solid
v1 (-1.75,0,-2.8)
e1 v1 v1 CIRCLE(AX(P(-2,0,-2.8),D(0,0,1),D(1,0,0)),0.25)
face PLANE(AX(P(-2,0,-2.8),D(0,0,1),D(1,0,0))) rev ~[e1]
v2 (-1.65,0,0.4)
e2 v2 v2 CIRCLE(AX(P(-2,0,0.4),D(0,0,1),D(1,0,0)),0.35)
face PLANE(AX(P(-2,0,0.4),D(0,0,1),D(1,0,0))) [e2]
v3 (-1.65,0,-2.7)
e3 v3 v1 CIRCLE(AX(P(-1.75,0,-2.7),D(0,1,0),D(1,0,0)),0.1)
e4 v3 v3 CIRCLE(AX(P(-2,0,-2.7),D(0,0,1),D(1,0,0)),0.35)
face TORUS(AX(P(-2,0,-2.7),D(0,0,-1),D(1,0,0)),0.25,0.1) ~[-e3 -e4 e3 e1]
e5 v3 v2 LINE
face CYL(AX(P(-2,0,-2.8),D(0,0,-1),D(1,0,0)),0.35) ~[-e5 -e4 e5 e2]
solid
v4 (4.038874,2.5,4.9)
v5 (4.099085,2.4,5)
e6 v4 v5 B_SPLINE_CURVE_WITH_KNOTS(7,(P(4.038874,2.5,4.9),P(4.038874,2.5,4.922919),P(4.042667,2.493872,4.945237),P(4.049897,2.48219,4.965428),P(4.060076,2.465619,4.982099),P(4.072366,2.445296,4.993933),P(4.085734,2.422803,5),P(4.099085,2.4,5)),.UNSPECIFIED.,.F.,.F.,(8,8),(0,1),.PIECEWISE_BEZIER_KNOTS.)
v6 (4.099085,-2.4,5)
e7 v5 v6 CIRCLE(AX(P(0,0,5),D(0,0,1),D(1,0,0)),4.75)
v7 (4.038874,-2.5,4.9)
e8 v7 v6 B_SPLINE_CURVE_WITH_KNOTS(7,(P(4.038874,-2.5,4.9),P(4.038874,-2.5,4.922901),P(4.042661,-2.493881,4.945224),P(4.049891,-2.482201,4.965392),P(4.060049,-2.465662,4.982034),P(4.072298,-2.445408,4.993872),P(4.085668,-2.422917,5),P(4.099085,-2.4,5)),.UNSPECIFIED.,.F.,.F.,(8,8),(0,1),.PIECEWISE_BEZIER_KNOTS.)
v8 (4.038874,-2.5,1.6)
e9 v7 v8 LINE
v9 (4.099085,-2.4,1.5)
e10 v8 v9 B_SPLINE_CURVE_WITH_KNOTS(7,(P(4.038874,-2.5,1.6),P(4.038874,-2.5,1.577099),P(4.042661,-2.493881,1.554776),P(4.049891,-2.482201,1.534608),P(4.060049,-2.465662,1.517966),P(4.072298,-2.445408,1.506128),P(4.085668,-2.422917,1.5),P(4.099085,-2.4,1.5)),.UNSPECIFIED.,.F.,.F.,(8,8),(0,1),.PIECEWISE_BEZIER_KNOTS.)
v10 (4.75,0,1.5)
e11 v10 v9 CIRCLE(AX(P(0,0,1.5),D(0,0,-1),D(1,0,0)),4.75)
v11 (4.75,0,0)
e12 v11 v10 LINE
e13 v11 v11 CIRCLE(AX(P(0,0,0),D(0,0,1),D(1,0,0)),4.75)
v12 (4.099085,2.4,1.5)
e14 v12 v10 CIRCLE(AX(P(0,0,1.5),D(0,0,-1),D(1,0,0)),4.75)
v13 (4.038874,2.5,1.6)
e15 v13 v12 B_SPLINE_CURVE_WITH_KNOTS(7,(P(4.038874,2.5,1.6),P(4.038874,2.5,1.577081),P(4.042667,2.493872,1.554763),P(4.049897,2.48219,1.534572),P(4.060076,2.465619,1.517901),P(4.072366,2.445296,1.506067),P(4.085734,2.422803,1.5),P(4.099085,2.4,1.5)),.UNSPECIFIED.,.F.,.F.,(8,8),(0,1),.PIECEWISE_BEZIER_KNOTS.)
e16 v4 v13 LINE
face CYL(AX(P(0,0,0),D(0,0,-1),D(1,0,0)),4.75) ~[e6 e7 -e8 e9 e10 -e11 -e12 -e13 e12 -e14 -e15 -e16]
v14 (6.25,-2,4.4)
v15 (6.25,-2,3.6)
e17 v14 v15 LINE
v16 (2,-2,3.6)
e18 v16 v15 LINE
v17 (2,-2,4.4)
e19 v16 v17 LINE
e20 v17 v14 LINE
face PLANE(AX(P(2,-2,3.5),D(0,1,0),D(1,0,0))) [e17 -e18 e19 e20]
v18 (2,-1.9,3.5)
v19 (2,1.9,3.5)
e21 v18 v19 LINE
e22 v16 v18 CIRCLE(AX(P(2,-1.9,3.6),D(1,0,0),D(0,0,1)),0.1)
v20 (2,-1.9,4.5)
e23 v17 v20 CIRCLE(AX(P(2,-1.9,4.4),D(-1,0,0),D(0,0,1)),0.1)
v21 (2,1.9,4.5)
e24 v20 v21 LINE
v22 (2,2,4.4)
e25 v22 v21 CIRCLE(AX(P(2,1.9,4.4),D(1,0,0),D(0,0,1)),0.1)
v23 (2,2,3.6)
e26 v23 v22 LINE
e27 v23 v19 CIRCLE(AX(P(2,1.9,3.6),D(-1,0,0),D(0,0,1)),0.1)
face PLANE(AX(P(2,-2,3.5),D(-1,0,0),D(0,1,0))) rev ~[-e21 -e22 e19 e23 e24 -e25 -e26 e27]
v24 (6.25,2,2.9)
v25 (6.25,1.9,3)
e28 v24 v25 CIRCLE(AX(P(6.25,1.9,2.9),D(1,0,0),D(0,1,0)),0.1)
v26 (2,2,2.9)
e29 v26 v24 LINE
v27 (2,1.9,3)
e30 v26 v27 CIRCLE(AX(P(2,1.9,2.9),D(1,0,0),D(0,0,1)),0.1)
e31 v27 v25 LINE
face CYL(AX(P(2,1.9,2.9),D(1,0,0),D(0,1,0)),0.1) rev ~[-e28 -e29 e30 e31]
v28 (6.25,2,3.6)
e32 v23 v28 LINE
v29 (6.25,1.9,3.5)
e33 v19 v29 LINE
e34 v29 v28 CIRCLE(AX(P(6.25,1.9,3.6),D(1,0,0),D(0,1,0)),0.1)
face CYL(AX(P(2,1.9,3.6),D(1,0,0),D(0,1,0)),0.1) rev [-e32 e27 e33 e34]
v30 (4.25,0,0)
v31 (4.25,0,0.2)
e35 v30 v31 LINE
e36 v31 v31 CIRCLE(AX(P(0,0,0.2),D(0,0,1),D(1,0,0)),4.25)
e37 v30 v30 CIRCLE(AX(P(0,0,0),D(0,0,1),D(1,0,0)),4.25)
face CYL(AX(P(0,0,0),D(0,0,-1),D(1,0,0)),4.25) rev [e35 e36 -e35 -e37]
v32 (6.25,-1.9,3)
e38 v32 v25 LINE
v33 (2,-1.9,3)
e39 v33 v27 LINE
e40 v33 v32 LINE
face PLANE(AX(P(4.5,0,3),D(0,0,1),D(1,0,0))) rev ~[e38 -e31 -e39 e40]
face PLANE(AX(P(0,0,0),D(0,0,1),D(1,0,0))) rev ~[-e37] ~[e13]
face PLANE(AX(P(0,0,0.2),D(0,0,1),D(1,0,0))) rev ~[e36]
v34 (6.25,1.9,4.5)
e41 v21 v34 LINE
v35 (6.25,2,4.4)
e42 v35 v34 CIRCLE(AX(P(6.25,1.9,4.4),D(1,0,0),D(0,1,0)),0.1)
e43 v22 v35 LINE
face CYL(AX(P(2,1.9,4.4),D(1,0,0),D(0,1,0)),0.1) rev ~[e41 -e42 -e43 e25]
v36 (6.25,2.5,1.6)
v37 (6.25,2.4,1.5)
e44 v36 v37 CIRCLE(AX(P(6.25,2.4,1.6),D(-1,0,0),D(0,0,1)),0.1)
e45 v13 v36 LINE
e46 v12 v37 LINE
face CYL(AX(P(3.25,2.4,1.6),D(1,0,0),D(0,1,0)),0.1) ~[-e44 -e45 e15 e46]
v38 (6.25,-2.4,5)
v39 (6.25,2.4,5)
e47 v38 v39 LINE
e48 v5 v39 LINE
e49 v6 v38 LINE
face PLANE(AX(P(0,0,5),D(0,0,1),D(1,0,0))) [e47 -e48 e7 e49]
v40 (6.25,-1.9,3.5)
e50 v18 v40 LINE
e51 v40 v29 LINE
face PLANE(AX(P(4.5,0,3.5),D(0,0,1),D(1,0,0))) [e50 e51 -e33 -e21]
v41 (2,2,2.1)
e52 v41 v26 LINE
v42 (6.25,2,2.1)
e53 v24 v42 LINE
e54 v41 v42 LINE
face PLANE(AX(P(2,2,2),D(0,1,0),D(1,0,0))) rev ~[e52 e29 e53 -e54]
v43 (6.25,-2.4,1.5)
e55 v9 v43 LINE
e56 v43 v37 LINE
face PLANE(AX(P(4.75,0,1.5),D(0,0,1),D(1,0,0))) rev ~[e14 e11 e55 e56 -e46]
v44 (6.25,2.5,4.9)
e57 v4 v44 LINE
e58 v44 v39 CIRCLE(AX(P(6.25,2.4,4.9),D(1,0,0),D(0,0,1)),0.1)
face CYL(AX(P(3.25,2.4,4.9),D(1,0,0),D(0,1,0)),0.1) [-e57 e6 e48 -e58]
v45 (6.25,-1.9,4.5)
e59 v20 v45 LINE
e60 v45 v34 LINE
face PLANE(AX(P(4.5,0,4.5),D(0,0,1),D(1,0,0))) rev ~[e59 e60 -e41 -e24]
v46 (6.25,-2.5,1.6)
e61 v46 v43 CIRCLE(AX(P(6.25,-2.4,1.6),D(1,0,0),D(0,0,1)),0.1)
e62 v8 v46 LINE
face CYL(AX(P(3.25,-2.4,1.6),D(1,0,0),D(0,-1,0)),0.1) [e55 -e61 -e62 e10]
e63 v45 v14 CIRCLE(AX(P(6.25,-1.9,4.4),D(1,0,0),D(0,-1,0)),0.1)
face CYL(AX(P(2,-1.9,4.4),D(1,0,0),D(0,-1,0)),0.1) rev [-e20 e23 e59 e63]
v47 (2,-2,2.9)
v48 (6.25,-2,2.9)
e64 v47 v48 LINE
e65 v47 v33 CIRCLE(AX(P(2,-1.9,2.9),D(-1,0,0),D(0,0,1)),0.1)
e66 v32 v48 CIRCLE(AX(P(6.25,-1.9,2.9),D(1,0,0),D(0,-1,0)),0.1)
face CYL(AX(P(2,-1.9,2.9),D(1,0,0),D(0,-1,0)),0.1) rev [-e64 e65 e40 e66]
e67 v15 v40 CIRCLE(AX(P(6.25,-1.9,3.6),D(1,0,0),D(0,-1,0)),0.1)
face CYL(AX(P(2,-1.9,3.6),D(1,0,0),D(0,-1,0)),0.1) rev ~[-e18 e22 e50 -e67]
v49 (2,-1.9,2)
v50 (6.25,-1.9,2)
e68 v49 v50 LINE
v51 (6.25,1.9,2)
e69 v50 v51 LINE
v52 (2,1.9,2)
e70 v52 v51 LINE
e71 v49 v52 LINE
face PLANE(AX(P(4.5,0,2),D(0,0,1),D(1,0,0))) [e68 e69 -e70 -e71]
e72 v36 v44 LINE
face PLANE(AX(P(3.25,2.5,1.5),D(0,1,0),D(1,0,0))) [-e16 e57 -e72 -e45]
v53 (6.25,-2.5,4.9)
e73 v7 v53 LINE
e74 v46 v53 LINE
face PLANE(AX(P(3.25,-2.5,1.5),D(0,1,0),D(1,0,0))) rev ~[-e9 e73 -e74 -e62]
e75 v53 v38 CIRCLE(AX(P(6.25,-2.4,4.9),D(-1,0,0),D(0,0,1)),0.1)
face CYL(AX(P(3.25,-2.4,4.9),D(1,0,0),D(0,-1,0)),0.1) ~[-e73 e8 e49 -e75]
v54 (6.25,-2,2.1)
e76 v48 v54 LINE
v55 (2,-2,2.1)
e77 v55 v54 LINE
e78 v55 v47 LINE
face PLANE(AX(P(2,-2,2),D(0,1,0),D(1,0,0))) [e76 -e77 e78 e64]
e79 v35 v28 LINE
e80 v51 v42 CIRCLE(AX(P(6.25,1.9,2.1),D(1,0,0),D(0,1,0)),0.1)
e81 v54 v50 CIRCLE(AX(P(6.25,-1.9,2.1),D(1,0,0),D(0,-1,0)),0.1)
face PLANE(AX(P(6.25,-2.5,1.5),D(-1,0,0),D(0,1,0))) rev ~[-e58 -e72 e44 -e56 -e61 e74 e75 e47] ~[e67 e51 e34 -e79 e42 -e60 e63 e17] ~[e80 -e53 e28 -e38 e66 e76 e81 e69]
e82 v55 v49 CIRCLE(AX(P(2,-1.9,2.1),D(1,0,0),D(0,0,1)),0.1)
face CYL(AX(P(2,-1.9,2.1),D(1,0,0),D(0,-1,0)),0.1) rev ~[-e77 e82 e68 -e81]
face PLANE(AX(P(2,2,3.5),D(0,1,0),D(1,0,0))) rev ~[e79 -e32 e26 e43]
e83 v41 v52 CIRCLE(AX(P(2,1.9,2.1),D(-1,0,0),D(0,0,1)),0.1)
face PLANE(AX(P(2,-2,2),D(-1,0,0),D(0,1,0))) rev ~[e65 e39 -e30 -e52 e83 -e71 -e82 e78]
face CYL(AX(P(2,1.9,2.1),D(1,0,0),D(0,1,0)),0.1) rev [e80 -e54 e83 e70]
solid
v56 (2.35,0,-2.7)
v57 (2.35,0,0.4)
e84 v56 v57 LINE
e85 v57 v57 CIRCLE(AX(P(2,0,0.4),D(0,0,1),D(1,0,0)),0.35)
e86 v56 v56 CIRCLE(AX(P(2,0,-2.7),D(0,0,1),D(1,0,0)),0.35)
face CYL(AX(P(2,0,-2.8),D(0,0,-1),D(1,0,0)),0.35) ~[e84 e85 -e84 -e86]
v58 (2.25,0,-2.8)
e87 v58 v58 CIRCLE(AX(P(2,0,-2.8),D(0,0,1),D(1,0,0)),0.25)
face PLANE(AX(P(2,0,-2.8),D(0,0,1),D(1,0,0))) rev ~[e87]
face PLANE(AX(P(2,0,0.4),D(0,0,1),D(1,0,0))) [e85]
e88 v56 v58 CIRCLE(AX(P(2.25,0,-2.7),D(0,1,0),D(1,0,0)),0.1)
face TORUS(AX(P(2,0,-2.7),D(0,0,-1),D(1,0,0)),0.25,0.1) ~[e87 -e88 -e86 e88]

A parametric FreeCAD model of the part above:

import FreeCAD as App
import Part
import Sketcher


def edges_at(feature, points):
    """Names of the edges that pass closest to the given points."""
    edges = feature.Shape.Edges
    near = lambda p: min(range(len(edges)), key=lambda i: edges[i].distToShape(Part.Vertex(*p))[0])
    return sorted({f"Edge{near(p) + 1}" for p in points})

doc = App.newDocument("Part")
body = doc.addObject("PartDesign::Body", "Body")

sketch1 = body.newObject("Sketcher::SketchObject", "Sketch")
sketch1.AttachmentSupport = (doc.getObject("XY_Plane"), [""])
sketch1.MapMode = "FlatFace"
sketch1.AttachmentOffset = App.Placement(App.Vector(0, 0, -2.8), App.Rotation())
sketch1.addGeometry(Part.Circle(App.Vector(2, 0, 0), App.Vector(0, 0, 1), 0.35), False)
sketch1.addConstraint([
    Sketcher.Constraint("PointOnObject", 0, 3, -1),
    Sketcher.Constraint("Diameter", 0, 0.7),
    Sketcher.Constraint("DistanceX", -1, 1, 0, 3, 2.0),
])
pad1 = body.newObject("PartDesign::Pad", "Pad")
pad1.Profile = sketch1
pad1.Length = 3.2
doc.recompute()

fillet = body.newObject("PartDesign::Fillet", "Fillet")
fillet.Base = (pad1, edges_at(pad1, [(1.65, 0, -2.8)]))
fillet.Radius = 0.1
body2 = doc.addObject("PartDesign::Body", "Body001")

sketch2 = body2.newObject("Sketcher::SketchObject", "Sketch001")
sketch2.AttachmentSupport = (doc.getObject("XY_Plane001"), [""])
sketch2.MapMode = "FlatFace"
sketch2.AttachmentOffset = App.Placement(App.Vector(0, 0, -2.8), App.Rotation())
sketch2.addGeometry(Part.Circle(App.Vector(-2, 0, 0), App.Vector(0, 0, 1), 0.35), False)
sketch2.addConstraint([
    Sketcher.Constraint("PointOnObject", 0, 3, -1),
    Sketcher.Constraint("Diameter", 0, 0.7),
    Sketcher.Constraint("DistanceX", 0, 3, -1, 1, 2.0),
])
pad2 = body2.newObject("PartDesign::Pad", "Pad001")
pad2.Profile = sketch2
pad2.Length = 3.2
doc.recompute()

fillet2 = body2.newObject("PartDesign::Fillet", "Fillet001")
fillet2.Base = (pad2, edges_at(pad2, [(-2.35, 0, -2.8)]))
fillet2.Radius = 0.1
body3 = doc.addObject("PartDesign::Body", "Body002")

sketch3 = body3.newObject("Sketcher::SketchObject", "Sketch002")
sketch3.AttachmentSupport = (doc.getObject("XY_Plane002"), [""])
sketch3.MapMode = "FlatFace"
sketch3.AttachmentOffset = App.Placement(App.Vector(0, 0, 2), App.Rotation())
sketch3.addGeometry([
    Part.LineSegment(App.Vector(2, 2, 0), App.Vector(2, -2, 0)),
    Part.LineSegment(App.Vector(2, -2, 0), App.Vector(7, -2, 0)),
    Part.LineSegment(App.Vector(7, -2, 0), App.Vector(7, 2, 0)),
    Part.LineSegment(App.Vector(7, 2, 0), App.Vector(2, 2, 0)),
], False)
sketch3.addConstraint([
    Sketcher.Constraint("Coincident", 0, 2, 1, 1),
    Sketcher.Constraint("Coincident", 1, 2, 2, 1),
    Sketcher.Constraint("Coincident", 2, 2, 3, 1),
    Sketcher.Constraint("Coincident", 3, 2, 0, 1),
    Sketcher.Constraint("Vertical", 0),
    Sketcher.Constraint("Horizontal", 1),
    Sketcher.Constraint("Vertical", 2),
    Sketcher.Constraint("Horizontal", 3),
    Sketcher.Constraint("DistanceX", 1, 1, 1, 2, 5.0),
    Sketcher.Constraint("DistanceY", 0, 2, 0, 1, 4.0),
    Sketcher.Constraint("DistanceX", -1, 1, 0, 2, 2.0),
    Sketcher.Constraint("DistanceY", 0, 2, -1, 1, 2.0),
])
pad3 = body3.newObject("PartDesign::Pad", "Pad002")
pad3.Profile = sketch3
pad3.Length = 1
doc.recompute()

fillet3 = body3.newObject("PartDesign::Fillet", "Fillet002")
fillet3.Base = (pad3, edges_at(pad3, [
    (4.5, -2, 2),
    (4.5, -2, 3),
    (4.5, 2, 2),
    (4.5, 2, 3),
]))
fillet3.Radius = 0.1
body4 = doc.addObject("PartDesign::Body", "Body003")
doc.recompute()

body3.Placement = App.Placement(App.Vector(0, 0, 1.5), App.Rotation(App.Vector(0, 0, 1), 0))
boolean = body4.newObject("PartDesign::Boolean", "Boolean")
boolean.Type = "Fuse"
boolean.addObjects([body3])
body5 = doc.addObject("PartDesign::Body", "Body004")
body5.AllowCompound = True

sketch4 = body5.newObject("Sketcher::SketchObject", "Sketch003")
sketch4.AttachmentSupport = (doc.getObject("XY_Plane004"), [""])
sketch4.MapMode = "FlatFace"
sketch4.AttachmentOffset = App.Placement(App.Vector(0, 0, 2), App.Rotation())
sketch4.addGeometry([
    Part.LineSegment(App.Vector(2, 2, 0), App.Vector(2, -2, 0)),
    Part.LineSegment(App.Vector(2, -2, 0), App.Vector(7, -2, 0)),
    Part.LineSegment(App.Vector(7, -2, 0), App.Vector(7, 2, 0)),
    Part.LineSegment(App.Vector(7, 2, 0), App.Vector(2, 2, 0)),
], False)
sketch4.addConstraint([
    Sketcher.Constraint("Coincident", 0, 2, 1, 1),
    Sketcher.Constraint("Coincident", 1, 2, 2, 1),
    Sketcher.Constraint("Coincident", 2, 2, 3, 1),
    Sketcher.Constraint("Coincident", 3, 2, 0, 1),
    Sketcher.Constraint("Vertical", 0),
    Sketcher.Constraint("Horizontal", 1),
    Sketcher.Constraint("Vertical", 2),
    Sketcher.Constraint("Horizontal", 3),
    Sketcher.Constraint("DistanceX", 1, 1, 1, 2, 5.0),
    Sketcher.Constraint("DistanceY", 0, 2, 0, 1, 4.0),
    Sketcher.Constraint("DistanceX", -1, 1, 0, 2, 2.0),
    Sketcher.Constraint("DistanceY", 0, 2, -1, 1, 2.0),
])
pad4 = body5.newObject("PartDesign::Pad", "Pad003")
pad4.Profile = sketch4
pad4.Length = 1
doc.recompute()

fillet4 = body5.newObject("PartDesign::Fillet", "Fillet003")
fillet4.Base = (pad4, edges_at(pad4, [
    (4.5, -2, 2),
    (4.5, -2, 3),
    (4.5, 2, 2),
    (4.5, 2, 3),
]))
fillet4.Radius = 0.1
doc.recompute()

boolean2 = body5.newObject("PartDesign::Boolean", "Boolean001")
boolean2.Type = "Fuse"
boolean2.addObjects([body4])
body6 = doc.addObject("PartDesign::Body", "Body005")

sketch5 = body6.newObject("Sketcher::SketchObject", "Sketch004")
sketch5.AttachmentSupport = (doc.getObject("XY_Plane005"), [""])
sketch5.MapMode = "FlatFace"
sketch5.AttachmentOffset = App.Placement(App.Vector(0, 0, 1.5), App.Rotation())
sketch5.addGeometry([
    Part.LineSegment(App.Vector(3.2, 2.5, 0), App.Vector(3.2, -2.5, 0)),
    Part.LineSegment(App.Vector(3.2, -2.5, 0), App.Vector(6.2, -2.5, 0)),
    Part.LineSegment(App.Vector(6.2, -2.5, 0), App.Vector(6.2, 2.5, 0)),
    Part.LineSegment(App.Vector(6.2, 2.5, 0), App.Vector(3.2, 2.5, 0)),
], False)
sketch5.addConstraint([
    Sketcher.Constraint("Coincident", 0, 2, 1, 1),
    Sketcher.Constraint("Coincident", 1, 2, 2, 1),
    Sketcher.Constraint("Coincident", 2, 2, 3, 1),
    Sketcher.Constraint("Coincident", 3, 2, 0, 1),
    Sketcher.Constraint("Vertical", 0),
    Sketcher.Constraint("Horizontal", 1),
    Sketcher.Constraint("Vertical", 2),
    Sketcher.Constraint("Horizontal", 3),
    Sketcher.Constraint("DistanceX", 1, 1, 1, 2, 3.0),
    Sketcher.Constraint("DistanceY", 0, 2, 0, 1, 5.0),
    Sketcher.Constraint("DistanceY", 0, 2, -1, 1, 2.5),
    Sketcher.Constraint("DistanceX", -1, 1, 0, 2, 3.25),
])
pad5 = body6.newObject("PartDesign::Pad", "Pad004")
pad5.Profile = sketch5
pad5.Length = 3.5
doc.recompute()

fillet5 = body6.newObject("PartDesign::Fillet", "Fillet004")
fillet5.Base = (pad5, edges_at(pad5, [
    (4.75, -2.5, 1.5),
    (4.75, -2.5, 5),
    (4.75, 2.5, 1.5),
    (4.75, 2.5, 5),
]))
fillet5.Radius = 0.1
body7 = doc.addObject("PartDesign::Body", "Body006")

sketch6 = body7.newObject("Sketcher::SketchObject", "Sketch005")
sketch6.AttachmentSupport = (doc.getObject("XY_Plane006"), [""])
sketch6.MapMode = "FlatFace"
sketch6.addGeometry(Part.Circle(App.Vector(0, 0, 0), App.Vector(0, 0, 1), 4.2), False)
sketch6.addConstraint([
    Sketcher.Constraint("Coincident", 0, 3, -1, 1),
    Sketcher.Constraint("Diameter", 0, 8.5),
])
pad6 = body7.newObject("PartDesign::Pad", "Pad005")
pad6.Profile = sketch6
pad6.Length = 0.2
body8 = doc.addObject("PartDesign::Body", "Body007")

sketch7 = body8.newObject("Sketcher::SketchObject", "Sketch006")
sketch7.AttachmentSupport = (doc.getObject("XY_Plane007"), [""])
sketch7.MapMode = "FlatFace"
sketch7.addGeometry(Part.Circle(App.Vector(0, 0, 0), App.Vector(0, 0, 1), 4.8), False)
sketch7.addConstraint([
    Sketcher.Constraint("Coincident", 0, 3, -1, 1),
    Sketcher.Constraint("Diameter", 0, 9.5),
])
pad7 = body8.newObject("PartDesign::Pad", "Pad006")
pad7.Profile = sketch7
pad7.Length = 5
doc.recompute()

boolean3 = body8.newObject("PartDesign::Boolean", "Boolean002")
boolean3.Type = "Cut"
boolean3.addObjects([body7])
doc.recompute()

boolean4 = body8.newObject("PartDesign::Boolean", "Boolean003")
boolean4.Type = "Fuse"
boolean4.addObjects([body6])
doc.recompute()

boolean5 = body8.newObject("PartDesign::Boolean", "Boolean004")
boolean5.Type = "Cut"
boolean5.addObjects([body5])

doc.recompute()
